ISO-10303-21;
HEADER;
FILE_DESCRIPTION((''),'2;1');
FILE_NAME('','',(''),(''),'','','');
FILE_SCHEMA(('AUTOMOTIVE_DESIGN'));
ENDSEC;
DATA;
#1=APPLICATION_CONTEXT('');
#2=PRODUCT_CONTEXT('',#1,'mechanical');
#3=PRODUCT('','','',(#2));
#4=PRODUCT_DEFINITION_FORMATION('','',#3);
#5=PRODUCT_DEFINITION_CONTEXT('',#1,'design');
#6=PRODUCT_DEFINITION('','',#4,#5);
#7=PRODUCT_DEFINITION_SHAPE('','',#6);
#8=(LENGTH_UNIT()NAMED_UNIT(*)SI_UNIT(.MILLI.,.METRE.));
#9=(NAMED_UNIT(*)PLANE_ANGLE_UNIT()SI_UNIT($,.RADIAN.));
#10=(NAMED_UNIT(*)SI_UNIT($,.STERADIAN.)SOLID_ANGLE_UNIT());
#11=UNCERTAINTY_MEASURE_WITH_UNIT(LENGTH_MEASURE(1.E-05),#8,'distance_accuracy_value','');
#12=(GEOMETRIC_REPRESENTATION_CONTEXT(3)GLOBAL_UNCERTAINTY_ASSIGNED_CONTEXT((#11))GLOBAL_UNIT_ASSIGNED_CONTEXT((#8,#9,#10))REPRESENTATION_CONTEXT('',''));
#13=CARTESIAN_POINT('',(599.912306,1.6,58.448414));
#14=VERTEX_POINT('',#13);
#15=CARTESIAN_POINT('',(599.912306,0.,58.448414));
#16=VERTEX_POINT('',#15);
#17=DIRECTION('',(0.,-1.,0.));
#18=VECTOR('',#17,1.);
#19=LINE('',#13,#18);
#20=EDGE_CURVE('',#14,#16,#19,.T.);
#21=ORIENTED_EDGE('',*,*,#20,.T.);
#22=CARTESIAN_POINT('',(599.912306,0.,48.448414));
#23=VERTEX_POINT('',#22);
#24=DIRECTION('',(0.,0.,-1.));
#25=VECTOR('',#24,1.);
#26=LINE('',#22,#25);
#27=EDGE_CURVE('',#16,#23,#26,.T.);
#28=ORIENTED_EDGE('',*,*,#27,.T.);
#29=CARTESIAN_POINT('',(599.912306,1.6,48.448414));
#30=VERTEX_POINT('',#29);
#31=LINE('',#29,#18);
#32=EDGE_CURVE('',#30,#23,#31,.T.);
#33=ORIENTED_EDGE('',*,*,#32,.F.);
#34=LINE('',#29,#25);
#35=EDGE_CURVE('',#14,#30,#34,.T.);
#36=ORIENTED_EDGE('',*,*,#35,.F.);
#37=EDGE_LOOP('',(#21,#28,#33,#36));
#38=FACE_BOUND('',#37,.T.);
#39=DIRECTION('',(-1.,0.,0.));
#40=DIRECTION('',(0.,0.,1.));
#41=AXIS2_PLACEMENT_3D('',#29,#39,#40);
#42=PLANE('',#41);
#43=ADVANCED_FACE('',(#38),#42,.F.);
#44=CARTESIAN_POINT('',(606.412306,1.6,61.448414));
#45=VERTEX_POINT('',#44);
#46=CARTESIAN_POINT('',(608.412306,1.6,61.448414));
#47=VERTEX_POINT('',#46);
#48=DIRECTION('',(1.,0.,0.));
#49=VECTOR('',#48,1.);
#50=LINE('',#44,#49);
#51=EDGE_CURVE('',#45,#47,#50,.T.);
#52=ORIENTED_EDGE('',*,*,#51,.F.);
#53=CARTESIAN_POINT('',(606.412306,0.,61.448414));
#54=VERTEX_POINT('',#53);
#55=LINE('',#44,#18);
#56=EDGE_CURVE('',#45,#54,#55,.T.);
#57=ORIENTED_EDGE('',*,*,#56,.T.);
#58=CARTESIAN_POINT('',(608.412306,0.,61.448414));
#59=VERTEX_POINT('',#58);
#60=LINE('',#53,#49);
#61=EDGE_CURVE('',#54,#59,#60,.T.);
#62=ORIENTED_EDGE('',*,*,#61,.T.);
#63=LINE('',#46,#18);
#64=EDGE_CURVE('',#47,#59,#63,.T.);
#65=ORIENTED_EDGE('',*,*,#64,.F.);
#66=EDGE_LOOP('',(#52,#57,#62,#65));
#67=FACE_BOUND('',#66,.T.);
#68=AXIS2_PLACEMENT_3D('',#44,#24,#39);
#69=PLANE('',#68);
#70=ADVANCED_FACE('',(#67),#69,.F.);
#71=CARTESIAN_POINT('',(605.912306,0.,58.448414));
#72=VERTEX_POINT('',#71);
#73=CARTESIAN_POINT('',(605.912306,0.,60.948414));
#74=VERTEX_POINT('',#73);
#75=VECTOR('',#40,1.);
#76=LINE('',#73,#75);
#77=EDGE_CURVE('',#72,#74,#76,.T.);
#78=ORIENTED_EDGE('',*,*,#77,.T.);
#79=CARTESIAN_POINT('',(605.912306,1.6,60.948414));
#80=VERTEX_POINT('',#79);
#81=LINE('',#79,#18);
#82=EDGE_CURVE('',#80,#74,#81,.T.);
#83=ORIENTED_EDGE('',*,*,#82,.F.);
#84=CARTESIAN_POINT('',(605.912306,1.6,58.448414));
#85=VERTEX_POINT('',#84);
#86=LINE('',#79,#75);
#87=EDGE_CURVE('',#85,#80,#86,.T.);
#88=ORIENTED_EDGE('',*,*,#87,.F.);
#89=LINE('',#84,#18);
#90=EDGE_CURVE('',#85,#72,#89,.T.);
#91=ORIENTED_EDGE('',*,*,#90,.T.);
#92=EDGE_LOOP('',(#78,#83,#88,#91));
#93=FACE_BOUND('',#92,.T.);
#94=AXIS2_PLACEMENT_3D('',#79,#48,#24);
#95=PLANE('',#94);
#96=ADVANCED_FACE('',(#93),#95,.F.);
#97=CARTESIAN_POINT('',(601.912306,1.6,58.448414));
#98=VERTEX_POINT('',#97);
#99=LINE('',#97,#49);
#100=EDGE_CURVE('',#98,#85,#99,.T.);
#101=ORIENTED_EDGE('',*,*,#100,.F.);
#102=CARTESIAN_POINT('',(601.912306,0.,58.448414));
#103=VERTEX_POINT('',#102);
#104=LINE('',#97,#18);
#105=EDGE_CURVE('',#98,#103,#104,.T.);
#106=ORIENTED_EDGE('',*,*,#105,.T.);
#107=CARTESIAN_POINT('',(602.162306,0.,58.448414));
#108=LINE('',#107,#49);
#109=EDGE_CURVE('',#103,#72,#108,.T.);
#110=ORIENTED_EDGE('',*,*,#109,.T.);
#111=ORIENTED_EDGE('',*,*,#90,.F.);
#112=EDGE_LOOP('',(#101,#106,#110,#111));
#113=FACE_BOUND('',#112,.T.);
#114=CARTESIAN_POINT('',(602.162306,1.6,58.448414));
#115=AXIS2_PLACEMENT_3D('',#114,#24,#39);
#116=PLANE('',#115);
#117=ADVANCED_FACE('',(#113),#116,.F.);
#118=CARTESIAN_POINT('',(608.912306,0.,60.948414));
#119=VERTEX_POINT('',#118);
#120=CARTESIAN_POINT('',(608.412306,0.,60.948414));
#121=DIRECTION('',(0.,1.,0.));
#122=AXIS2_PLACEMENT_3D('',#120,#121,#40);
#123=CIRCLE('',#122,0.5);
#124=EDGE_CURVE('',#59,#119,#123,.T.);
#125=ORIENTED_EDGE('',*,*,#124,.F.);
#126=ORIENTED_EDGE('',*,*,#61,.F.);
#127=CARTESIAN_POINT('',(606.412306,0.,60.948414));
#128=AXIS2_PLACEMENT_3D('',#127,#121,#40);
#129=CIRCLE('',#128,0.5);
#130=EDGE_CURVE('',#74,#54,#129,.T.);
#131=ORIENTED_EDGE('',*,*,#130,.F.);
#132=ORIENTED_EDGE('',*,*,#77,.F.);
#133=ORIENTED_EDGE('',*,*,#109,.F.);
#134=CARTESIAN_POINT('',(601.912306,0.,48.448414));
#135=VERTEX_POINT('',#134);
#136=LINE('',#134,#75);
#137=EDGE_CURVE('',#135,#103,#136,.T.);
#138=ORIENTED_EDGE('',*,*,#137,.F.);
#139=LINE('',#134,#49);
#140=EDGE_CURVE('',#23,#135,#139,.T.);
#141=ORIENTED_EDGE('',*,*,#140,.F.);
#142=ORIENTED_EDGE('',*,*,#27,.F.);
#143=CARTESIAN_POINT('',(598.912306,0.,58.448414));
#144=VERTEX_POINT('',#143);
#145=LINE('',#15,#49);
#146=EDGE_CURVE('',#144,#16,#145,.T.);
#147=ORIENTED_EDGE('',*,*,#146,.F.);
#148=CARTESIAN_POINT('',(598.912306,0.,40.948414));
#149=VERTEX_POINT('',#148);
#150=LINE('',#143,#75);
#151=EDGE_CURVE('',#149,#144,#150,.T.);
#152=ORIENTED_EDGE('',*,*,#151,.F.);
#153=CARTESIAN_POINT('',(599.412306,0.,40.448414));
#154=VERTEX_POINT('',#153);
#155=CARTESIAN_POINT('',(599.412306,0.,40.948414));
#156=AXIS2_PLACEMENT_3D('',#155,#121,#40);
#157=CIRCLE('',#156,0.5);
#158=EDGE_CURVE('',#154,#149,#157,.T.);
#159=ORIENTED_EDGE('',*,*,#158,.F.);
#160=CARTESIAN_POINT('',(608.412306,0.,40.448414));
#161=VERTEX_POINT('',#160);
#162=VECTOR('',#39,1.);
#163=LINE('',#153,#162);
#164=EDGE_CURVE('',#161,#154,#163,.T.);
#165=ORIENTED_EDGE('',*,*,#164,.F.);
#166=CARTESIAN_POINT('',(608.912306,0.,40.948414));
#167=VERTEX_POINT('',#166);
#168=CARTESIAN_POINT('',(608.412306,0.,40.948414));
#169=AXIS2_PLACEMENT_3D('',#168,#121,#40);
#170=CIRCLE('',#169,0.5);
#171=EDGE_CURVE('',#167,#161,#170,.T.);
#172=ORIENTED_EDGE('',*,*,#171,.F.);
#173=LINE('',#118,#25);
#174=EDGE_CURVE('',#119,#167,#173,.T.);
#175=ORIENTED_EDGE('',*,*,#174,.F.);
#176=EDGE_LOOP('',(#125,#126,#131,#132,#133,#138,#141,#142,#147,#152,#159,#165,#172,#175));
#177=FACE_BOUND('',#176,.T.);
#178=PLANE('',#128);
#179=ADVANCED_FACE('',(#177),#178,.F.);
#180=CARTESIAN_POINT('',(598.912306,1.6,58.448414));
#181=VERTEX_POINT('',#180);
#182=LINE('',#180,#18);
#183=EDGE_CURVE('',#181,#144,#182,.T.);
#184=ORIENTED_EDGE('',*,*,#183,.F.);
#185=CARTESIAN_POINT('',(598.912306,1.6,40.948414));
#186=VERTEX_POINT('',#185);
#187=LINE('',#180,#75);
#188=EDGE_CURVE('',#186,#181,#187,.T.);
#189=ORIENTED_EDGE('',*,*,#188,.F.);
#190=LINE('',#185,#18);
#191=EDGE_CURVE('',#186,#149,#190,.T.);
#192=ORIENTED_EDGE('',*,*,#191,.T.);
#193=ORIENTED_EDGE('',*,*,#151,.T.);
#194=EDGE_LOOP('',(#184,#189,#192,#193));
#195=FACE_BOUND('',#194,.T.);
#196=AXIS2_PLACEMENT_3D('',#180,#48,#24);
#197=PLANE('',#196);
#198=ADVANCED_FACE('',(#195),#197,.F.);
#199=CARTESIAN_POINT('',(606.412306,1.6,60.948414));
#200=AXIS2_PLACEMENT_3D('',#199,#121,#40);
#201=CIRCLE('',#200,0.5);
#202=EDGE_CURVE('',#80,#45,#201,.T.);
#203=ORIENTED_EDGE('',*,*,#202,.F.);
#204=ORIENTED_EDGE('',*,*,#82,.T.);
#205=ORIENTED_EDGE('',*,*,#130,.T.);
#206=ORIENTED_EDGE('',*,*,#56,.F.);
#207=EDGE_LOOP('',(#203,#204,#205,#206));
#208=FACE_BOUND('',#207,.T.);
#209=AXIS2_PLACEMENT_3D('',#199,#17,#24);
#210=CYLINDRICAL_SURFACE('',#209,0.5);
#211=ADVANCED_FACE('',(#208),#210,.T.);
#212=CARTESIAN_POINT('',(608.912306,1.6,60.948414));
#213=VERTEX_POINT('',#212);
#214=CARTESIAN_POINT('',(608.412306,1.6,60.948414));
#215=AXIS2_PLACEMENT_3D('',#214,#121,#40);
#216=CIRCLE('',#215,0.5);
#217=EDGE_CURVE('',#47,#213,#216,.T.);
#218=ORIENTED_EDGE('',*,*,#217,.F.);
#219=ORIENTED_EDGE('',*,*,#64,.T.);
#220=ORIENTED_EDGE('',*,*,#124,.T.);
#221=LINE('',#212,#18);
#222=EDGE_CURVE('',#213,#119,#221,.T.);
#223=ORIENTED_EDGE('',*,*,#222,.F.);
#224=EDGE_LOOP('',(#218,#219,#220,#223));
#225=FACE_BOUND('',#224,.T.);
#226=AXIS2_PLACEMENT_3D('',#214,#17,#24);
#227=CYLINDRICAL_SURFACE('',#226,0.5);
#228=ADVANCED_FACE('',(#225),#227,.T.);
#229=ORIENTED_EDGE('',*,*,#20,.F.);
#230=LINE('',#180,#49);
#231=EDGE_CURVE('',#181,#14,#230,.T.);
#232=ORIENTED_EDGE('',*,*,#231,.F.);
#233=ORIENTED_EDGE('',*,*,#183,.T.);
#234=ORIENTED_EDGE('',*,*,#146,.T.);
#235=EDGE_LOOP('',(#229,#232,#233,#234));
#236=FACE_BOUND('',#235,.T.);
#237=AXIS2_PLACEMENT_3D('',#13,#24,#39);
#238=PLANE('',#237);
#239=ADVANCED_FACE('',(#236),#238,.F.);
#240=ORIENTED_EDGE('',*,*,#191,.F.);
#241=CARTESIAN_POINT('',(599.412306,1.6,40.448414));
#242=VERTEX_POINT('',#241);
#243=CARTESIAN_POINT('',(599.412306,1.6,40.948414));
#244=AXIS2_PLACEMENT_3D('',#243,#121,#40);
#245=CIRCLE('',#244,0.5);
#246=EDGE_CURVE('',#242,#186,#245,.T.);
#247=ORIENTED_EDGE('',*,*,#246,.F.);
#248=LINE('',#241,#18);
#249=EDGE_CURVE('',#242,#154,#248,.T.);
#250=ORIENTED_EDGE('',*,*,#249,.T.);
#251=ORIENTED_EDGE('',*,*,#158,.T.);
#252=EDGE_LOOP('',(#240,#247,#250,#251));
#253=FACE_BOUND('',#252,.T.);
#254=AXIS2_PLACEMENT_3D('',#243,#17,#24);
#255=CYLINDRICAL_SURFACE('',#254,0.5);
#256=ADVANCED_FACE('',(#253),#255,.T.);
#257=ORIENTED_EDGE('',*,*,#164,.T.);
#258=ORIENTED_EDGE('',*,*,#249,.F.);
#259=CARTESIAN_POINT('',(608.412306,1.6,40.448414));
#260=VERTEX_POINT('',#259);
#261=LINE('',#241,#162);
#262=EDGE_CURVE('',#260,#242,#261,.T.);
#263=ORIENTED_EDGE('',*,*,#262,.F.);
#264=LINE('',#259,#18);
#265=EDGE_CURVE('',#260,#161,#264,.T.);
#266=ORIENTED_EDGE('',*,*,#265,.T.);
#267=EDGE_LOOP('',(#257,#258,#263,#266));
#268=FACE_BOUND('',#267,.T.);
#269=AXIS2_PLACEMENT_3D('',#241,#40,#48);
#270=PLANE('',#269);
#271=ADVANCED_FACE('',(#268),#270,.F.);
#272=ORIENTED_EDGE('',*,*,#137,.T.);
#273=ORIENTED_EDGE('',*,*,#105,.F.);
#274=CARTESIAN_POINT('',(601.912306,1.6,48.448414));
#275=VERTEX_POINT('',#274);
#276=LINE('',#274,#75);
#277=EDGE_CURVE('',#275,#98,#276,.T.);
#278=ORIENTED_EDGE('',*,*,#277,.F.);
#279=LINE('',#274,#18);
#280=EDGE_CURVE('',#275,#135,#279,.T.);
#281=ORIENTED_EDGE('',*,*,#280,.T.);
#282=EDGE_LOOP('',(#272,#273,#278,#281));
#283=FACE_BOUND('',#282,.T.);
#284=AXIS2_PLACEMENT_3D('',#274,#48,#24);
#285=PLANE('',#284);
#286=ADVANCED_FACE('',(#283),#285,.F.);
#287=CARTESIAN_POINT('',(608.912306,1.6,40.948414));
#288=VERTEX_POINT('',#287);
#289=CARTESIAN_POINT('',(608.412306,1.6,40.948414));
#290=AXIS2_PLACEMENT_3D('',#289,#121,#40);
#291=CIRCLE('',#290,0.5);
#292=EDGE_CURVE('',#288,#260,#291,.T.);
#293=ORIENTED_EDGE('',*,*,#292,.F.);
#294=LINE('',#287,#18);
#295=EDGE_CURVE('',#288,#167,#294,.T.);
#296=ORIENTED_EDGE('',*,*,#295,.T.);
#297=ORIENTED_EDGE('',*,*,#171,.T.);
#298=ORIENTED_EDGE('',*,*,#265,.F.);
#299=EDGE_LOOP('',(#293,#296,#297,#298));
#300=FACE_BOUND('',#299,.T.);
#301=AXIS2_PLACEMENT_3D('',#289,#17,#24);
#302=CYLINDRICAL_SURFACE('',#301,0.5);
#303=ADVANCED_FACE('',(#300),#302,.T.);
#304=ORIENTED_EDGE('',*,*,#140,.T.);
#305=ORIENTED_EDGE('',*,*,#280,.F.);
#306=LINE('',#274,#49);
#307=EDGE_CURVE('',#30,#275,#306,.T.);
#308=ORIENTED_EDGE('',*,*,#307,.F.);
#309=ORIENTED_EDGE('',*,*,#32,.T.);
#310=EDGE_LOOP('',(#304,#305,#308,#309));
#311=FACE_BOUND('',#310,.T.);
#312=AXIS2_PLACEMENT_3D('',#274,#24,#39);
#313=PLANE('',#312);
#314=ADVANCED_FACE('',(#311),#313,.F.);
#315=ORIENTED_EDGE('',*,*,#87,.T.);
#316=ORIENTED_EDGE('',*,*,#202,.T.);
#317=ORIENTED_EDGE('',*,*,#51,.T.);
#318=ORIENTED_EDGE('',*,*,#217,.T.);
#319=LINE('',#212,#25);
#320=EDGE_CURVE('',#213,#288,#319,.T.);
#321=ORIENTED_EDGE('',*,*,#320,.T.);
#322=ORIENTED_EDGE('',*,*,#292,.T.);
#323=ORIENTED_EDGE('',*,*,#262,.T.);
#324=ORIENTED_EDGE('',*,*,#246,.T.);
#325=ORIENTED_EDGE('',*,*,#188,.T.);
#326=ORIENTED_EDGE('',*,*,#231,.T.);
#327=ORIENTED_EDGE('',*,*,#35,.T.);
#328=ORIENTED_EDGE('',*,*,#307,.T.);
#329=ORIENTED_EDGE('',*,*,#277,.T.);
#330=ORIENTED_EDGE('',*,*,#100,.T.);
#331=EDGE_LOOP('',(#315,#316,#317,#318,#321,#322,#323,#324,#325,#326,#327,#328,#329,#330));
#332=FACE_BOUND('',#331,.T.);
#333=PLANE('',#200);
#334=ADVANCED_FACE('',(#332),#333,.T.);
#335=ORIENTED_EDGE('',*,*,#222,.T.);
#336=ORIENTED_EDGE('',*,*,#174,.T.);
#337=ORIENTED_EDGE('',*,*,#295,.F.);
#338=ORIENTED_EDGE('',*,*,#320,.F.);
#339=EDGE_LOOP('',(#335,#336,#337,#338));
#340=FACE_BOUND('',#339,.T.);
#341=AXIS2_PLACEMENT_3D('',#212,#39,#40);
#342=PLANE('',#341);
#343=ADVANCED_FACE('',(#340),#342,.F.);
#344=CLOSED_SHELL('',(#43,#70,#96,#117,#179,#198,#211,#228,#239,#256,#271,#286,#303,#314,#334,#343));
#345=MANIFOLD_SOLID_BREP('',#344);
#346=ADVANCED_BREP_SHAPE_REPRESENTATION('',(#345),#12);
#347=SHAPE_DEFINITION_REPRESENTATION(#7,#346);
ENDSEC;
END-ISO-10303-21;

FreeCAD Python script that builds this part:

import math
import FreeCAD as App
import Part
import Sketcher

V = App.Vector
Q = App.Units.Quantity

doc = App.newDocument("Part")
body = doc.addObject("PartDesign::Body", "Body")

# Sketch on XZ plane
sketch1 = body.newObject("Sketcher::SketchObject", "Sketch")
sketch1.AttachmentSupport = (doc.getObject("XZ_Plane"), [""])
sketch1.MapMode = "FlatFace"
sketch1.addGeometry([
    Part.LineSegment(V(606.41, 61.45, 0), V(608.41, 61.45, 0)),  # 0
    Part.ArcOfCircle(Part.Circle(V(608.41, 60.95, 0), V(0, 0, 1), 0.5), math.radians(0), math.radians(90)),  # 1
    Part.LineSegment(V(608.91, 60.95, 0), V(608.91, 40.95, 0)),  # 2
    Part.ArcOfCircle(Part.Circle(V(608.41, 40.95, 0), V(0, 0, 1), 0.5), math.radians(-90), math.radians(0)),  # 3
    Part.LineSegment(V(608.41, 40.45, 0), V(599.41, 40.45, 0)),  # 4
    Part.ArcOfCircle(Part.Circle(V(599.41, 40.95, 0), V(0, 0, 1), 0.5), math.radians(180), math.radians(270)),  # 5
    Part.LineSegment(V(598.91, 40.95, 0), V(598.91, 58.45, 0)),  # 6
    Part.LineSegment(V(598.91, 58.45, 0), V(599.91, 58.45, 0)),  # 7
    Part.LineSegment(V(599.91, 58.45, 0), V(599.91, 48.45, 0)),  # 8
    Part.LineSegment(V(599.91, 48.45, 0), V(601.91, 48.45, 0)),  # 9
    Part.LineSegment(V(601.91, 48.45, 0), V(601.91, 58.45, 0)),  # 10
    Part.LineSegment(V(601.91, 58.45, 0), V(605.91, 58.45, 0)),  # 11
    Part.LineSegment(V(605.91, 58.45, 0), V(605.91, 60.95, 0)),  # 12
    Part.ArcOfCircle(Part.Circle(V(606.41, 60.95, 0), V(0, 0, 1), 0.5), math.radians(90), math.radians(180)),  # 13
], False)
sketch1.addConstraint([
    Sketcher.Constraint("Tangent", 0, 2, 1, 2),
    Sketcher.Constraint("Tangent", 1, 1, 2, 1),
    Sketcher.Constraint("Tangent", 2, 2, 3, 2),
    Sketcher.Constraint("Tangent", 3, 1, 4, 1),
    Sketcher.Constraint("Tangent", 4, 2, 5, 2),
    Sketcher.Constraint("Tangent", 5, 1, 6, 1),
    Sketcher.Constraint("Coincident", 6, 2, 7, 1),
    Sketcher.Constraint("Coincident", 7, 2, 8, 1),
    Sketcher.Constraint("Coincident", 8, 2, 9, 1),
    Sketcher.Constraint("Coincident", 9, 2, 10, 1),
    Sketcher.Constraint("Coincident", 10, 2, 11, 1),
    Sketcher.Constraint("Coincident", 11, 2, 12, 1),
    Sketcher.Constraint("Tangent", 12, 2, 13, 2),
    Sketcher.Constraint("Tangent", 13, 1, 0, 1),
    Sketcher.Constraint("Horizontal", 0),
    Sketcher.Constraint("Vertical", 2),
    Sketcher.Constraint("Horizontal", 4),
    Sketcher.Constraint("Vertical", 6),
    Sketcher.Constraint("Horizontal", 7),
    Sketcher.Constraint("Vertical", 8),
    Sketcher.Constraint("Horizontal", 9),
    Sketcher.Constraint("Vertical", 10),
    Sketcher.Constraint("Horizontal", 11),
    Sketcher.Constraint("Vertical", 12),
    Sketcher.Constraint("Equal", 1, 3),
    Sketcher.Constraint("Equal", 3, 5),
    Sketcher.Constraint("Equal", 5, 13),
    Sketcher.Constraint("Horizontal", 7, 2, 10, 2),
    Sketcher.Constraint("Equal", 0, 9),
    Sketcher.Constraint("Radius", 1, Q("0.5 mm")),
    Sketcher.Constraint("DistanceX", 0, 1, 0, 2, Q("2 mm")),
    Sketcher.Constraint("DistanceX", 4, 2, 4, 1, Q("9 mm")),
    Sketcher.Constraint("DistanceX", 7, 1, 7, 2, Q("1 mm")),
    Sketcher.Constraint("DistanceY", 2, 2, 2, 1, Q("20 mm")),
    Sketcher.Constraint("DistanceY", 8, 2, 8, 1, Q("10 mm")),
    Sketcher.Constraint("DistanceY", 6, 1, 6, 2, Q("17.5 mm")),
    Sketcher.Constraint("DistanceX", -1, 1, 1, 3, Q("608.412306 mm")),
    Sketcher.Constraint("DistanceY", -1, 1, 1, 3, Q("60.948414 mm")),
])
pad1 = body.newObject("PartDesign::Pad", "Pad")
pad1.Profile = sketch1
pad1.Length = 1.6
pad1.Reversed = True

doc.recompute()
